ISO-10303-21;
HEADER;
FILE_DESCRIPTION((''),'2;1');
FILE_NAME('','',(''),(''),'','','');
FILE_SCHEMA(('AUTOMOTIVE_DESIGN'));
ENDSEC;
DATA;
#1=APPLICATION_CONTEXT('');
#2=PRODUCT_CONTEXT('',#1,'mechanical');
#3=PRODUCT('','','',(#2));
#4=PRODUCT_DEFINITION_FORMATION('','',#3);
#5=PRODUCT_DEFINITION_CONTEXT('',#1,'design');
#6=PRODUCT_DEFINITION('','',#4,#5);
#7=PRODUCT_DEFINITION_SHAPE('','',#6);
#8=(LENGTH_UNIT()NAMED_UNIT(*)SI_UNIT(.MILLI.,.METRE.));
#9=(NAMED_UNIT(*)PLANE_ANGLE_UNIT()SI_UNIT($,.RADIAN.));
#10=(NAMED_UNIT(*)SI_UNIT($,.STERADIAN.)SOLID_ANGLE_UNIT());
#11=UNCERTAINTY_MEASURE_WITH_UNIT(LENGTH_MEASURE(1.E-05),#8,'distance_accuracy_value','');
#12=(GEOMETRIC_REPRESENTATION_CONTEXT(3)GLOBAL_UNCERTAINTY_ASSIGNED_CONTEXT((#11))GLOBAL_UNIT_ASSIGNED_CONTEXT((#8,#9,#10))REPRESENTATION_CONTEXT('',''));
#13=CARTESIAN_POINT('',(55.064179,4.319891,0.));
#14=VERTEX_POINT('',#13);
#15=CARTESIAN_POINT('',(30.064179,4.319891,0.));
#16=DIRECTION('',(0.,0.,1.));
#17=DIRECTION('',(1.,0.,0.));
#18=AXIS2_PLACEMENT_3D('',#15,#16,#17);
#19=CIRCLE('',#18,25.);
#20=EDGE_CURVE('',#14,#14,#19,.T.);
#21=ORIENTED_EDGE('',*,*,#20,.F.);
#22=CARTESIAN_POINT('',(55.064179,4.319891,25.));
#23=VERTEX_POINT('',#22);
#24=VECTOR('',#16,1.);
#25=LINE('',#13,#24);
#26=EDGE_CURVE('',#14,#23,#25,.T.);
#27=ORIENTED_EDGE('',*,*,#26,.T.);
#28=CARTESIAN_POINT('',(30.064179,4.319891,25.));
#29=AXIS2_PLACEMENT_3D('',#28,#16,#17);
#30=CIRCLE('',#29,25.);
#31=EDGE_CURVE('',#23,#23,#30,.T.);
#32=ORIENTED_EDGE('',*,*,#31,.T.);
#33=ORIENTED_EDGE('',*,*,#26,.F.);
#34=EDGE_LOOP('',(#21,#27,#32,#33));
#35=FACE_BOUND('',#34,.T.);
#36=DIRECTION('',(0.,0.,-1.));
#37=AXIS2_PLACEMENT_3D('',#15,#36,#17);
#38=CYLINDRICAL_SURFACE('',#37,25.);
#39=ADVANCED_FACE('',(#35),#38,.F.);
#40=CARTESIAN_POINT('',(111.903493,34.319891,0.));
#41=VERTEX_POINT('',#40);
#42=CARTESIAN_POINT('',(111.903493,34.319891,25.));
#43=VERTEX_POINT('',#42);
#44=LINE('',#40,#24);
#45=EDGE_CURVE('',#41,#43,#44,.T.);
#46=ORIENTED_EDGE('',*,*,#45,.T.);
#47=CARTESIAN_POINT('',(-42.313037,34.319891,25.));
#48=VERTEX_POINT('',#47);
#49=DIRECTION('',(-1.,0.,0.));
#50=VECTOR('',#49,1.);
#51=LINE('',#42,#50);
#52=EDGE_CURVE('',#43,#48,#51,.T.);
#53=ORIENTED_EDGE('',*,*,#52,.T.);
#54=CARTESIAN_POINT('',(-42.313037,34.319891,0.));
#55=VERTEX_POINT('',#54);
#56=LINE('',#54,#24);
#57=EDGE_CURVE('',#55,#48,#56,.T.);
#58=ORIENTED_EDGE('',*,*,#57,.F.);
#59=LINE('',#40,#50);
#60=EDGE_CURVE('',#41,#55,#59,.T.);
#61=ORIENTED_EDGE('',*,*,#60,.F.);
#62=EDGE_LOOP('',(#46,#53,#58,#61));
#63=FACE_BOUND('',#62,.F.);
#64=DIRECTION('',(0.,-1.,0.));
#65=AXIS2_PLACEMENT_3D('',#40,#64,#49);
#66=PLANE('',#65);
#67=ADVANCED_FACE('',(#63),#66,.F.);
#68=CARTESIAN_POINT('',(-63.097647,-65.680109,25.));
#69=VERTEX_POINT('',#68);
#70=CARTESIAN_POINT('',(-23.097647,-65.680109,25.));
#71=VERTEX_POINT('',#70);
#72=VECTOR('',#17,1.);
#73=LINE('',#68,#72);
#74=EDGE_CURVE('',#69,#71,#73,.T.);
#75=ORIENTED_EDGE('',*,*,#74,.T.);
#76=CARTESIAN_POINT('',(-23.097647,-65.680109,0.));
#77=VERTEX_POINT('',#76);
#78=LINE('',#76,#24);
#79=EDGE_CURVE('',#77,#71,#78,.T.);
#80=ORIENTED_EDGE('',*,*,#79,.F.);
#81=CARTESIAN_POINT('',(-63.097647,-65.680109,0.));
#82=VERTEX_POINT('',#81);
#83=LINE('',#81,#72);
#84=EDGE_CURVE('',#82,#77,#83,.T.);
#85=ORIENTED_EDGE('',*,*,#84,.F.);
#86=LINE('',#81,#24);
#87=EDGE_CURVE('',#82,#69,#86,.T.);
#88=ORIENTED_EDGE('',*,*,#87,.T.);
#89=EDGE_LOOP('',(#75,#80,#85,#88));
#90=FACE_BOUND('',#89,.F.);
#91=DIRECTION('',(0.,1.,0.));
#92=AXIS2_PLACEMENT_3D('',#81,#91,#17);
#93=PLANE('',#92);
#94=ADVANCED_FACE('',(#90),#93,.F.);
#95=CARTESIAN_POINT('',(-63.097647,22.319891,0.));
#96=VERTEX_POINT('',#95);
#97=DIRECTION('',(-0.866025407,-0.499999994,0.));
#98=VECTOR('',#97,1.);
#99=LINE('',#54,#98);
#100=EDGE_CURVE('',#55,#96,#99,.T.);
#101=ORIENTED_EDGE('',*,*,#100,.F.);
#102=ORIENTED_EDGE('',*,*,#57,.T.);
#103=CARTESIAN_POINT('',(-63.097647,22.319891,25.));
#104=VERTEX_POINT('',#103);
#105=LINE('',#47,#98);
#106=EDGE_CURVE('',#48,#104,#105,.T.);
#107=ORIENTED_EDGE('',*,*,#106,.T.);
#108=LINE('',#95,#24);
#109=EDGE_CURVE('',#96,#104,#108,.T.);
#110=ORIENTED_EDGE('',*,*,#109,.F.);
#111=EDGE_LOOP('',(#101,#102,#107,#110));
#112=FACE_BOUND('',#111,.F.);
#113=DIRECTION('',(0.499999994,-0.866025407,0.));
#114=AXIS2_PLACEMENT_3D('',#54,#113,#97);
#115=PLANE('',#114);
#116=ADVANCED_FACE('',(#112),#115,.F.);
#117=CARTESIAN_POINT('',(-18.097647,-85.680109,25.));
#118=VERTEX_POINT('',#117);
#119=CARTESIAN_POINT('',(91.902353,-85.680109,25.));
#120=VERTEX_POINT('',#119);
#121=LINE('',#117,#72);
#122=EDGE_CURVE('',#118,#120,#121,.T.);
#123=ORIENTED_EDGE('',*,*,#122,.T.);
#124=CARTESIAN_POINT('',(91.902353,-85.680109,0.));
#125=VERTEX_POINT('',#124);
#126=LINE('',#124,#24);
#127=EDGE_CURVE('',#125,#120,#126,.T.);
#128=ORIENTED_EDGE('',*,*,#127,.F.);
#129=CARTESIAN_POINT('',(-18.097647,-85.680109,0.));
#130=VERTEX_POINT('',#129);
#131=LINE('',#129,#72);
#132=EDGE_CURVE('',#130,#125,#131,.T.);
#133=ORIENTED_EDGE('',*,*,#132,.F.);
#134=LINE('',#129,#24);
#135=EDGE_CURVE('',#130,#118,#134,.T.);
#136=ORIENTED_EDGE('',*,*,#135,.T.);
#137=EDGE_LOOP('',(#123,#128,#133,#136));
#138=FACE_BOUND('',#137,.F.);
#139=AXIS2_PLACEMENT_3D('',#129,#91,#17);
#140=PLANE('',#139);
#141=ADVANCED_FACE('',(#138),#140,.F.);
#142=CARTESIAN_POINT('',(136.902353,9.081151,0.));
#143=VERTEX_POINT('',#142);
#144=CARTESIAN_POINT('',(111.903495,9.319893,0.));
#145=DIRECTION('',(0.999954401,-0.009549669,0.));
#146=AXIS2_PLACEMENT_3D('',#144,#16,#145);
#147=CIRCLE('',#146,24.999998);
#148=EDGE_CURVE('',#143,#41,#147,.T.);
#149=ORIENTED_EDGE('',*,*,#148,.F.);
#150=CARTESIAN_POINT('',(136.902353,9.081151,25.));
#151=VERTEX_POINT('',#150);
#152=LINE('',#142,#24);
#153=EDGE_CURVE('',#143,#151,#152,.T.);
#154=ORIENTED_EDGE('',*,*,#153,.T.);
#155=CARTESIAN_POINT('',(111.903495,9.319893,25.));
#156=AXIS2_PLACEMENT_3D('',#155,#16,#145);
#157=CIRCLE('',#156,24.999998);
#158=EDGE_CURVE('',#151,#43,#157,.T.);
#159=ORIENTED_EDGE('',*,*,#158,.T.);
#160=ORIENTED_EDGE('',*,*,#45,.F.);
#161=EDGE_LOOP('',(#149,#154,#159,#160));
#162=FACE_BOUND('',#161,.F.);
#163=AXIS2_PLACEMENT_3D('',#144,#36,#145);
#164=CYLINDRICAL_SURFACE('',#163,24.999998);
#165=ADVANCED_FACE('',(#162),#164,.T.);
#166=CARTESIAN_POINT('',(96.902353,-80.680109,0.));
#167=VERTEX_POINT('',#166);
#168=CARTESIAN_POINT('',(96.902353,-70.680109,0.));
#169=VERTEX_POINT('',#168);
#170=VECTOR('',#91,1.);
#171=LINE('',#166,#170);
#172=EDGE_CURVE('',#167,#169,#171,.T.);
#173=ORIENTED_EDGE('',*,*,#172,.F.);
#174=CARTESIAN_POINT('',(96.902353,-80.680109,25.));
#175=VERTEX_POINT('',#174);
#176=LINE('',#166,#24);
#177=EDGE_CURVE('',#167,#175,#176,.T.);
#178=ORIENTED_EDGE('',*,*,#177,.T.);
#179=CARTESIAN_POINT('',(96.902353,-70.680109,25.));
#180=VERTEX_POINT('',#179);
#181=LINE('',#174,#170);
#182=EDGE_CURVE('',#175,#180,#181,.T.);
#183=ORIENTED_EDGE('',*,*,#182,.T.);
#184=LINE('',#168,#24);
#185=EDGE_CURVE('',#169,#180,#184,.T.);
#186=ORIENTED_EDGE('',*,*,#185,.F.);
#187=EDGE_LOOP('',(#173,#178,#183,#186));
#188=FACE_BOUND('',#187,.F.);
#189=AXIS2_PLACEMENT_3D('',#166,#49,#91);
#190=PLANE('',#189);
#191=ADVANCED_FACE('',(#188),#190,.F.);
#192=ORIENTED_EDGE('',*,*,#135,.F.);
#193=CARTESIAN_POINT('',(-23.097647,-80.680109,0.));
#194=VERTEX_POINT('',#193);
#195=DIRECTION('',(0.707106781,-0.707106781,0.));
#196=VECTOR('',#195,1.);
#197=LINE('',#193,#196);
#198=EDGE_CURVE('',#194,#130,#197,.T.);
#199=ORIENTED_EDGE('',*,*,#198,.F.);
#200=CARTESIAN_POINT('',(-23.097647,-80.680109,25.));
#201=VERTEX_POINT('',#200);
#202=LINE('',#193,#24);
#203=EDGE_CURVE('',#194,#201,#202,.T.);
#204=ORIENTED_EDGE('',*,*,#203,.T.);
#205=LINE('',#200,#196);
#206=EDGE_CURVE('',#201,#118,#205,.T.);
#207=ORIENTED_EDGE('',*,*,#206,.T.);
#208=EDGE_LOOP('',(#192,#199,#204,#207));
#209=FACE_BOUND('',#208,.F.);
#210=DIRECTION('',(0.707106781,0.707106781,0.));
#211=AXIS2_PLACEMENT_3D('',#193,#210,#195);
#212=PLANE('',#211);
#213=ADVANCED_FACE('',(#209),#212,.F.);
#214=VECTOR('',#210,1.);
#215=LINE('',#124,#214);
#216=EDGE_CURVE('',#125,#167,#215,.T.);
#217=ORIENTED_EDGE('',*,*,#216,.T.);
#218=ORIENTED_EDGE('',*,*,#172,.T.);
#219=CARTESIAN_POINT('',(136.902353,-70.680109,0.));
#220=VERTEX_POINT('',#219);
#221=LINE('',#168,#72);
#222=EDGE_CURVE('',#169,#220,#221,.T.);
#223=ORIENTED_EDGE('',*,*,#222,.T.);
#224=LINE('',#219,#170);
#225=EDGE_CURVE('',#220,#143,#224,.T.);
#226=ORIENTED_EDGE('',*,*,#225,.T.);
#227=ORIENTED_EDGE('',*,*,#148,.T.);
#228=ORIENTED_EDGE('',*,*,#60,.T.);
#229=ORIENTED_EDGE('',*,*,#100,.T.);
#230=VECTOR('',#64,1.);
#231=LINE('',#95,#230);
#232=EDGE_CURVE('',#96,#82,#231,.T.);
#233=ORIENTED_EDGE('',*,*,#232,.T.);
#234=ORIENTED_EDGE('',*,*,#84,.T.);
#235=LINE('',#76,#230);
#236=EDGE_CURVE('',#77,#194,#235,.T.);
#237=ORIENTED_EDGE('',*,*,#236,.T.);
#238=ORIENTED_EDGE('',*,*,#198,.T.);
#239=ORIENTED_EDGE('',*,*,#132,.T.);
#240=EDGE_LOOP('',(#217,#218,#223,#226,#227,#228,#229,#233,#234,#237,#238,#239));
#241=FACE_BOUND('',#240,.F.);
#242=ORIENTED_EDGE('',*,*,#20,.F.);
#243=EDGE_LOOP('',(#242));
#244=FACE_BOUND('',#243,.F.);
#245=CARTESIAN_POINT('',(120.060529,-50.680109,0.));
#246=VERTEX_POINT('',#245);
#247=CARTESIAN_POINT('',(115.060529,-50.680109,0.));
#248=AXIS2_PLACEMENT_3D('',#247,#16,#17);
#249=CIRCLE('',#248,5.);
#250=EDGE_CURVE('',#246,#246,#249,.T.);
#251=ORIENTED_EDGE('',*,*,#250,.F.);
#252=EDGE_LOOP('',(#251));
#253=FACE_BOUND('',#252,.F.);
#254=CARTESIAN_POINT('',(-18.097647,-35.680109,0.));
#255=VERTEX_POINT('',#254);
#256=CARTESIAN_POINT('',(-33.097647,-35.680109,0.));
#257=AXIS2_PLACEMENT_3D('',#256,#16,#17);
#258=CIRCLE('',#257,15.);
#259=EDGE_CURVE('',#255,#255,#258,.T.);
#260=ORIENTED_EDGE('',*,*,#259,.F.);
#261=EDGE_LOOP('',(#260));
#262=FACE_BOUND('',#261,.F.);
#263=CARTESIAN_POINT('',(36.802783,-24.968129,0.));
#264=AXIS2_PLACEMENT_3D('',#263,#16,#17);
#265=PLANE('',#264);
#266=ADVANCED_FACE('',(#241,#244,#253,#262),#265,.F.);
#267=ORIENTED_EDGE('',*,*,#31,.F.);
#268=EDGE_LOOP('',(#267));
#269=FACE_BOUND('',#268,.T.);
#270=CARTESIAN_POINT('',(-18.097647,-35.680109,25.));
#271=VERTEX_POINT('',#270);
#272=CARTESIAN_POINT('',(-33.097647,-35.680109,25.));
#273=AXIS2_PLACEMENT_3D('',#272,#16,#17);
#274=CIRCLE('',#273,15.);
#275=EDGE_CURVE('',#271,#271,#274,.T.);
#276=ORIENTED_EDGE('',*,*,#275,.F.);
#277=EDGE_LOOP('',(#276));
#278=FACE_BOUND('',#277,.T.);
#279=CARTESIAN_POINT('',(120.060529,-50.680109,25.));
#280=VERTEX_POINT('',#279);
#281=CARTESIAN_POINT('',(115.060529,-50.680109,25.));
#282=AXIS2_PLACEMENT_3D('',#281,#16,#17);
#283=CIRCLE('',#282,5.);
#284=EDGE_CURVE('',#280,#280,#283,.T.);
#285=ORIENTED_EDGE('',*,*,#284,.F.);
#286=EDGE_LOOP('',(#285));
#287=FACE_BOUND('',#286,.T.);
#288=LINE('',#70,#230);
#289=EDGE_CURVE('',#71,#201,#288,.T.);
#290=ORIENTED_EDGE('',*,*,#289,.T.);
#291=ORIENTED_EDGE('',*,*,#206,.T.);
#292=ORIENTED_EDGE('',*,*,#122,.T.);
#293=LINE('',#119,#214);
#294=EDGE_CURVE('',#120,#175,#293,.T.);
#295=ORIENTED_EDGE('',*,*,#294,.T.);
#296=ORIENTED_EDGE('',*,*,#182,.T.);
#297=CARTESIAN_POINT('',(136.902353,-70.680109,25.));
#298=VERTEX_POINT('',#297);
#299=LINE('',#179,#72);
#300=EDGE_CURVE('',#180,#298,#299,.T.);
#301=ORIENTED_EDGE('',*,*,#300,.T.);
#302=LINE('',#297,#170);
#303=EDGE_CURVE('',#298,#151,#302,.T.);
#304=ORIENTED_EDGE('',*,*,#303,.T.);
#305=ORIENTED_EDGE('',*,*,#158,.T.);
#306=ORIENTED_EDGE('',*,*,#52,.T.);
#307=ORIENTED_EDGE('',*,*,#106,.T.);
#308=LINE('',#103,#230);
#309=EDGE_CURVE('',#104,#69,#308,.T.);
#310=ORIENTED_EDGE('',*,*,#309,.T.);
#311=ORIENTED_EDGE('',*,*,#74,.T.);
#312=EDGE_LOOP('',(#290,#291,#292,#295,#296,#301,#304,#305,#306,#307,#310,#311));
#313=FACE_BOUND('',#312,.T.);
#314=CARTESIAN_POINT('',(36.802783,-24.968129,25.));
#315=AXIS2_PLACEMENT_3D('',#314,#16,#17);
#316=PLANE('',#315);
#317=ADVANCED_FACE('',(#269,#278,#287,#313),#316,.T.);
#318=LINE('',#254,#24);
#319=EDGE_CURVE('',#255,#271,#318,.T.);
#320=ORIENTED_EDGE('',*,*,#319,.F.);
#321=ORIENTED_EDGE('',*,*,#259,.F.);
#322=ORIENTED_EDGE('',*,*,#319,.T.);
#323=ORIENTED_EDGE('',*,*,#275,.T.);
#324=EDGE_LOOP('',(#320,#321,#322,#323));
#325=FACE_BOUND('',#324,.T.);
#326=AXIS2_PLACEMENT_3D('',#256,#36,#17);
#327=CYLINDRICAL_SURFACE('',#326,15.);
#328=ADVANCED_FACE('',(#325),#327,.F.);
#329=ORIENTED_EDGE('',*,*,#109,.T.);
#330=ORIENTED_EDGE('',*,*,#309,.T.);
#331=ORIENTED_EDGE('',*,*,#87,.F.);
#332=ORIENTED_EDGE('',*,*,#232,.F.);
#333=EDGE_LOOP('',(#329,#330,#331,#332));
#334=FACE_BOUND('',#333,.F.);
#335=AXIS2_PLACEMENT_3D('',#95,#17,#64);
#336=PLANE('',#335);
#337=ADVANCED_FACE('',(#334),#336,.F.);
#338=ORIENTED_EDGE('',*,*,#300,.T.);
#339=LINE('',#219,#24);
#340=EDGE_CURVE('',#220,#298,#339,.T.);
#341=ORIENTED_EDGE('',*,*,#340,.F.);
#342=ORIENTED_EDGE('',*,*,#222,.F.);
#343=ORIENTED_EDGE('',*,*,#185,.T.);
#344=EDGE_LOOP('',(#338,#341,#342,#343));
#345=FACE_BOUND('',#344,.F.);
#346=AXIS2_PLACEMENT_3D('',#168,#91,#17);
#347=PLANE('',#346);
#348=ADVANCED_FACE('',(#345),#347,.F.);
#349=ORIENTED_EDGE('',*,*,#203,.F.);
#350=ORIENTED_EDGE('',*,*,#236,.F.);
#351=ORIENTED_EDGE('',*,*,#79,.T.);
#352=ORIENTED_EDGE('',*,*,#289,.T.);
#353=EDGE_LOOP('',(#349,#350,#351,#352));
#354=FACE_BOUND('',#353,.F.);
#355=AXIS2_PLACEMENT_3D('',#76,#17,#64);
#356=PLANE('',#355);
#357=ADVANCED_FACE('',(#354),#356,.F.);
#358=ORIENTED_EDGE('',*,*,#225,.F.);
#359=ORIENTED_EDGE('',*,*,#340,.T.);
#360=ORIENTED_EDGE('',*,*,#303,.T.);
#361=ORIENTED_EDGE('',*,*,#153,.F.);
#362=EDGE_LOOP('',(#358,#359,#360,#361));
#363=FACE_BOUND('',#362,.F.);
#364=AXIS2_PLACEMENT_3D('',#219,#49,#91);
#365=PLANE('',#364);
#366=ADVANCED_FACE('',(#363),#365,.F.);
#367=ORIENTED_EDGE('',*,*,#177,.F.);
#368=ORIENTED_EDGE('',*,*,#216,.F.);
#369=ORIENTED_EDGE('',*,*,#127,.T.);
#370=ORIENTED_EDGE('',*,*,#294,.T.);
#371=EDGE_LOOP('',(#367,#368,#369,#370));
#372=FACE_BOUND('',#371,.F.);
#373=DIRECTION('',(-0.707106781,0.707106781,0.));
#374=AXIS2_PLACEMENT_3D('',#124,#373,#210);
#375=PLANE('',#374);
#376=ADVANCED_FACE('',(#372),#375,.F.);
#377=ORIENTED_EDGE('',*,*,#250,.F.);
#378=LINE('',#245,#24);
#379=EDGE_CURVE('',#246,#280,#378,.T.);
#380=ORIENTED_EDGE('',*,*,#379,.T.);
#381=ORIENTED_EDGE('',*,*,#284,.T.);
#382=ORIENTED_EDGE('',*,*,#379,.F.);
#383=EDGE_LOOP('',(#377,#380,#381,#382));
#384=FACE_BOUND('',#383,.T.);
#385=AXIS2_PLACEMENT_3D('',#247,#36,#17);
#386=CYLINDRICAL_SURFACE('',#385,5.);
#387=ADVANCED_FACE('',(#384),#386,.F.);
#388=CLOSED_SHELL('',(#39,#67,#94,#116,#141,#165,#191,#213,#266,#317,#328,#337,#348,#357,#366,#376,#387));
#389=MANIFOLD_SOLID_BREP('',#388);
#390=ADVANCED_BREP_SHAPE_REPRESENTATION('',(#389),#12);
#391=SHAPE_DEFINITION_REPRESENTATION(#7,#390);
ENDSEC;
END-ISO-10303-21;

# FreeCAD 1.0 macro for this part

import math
import FreeCAD as App
import Part
import Sketcher

doc = App.newDocument("Part")
body = doc.addObject("PartDesign::Body", "Body")

# Sketch on XY plane
sketch1 = body.newObject("Sketcher::SketchObject", "Sketch")
sketch1.AttachmentSupport = (doc.getObject("XY_Plane"), [""])
sketch1.MapMode = "FlatFace"
sketch1.addGeometry(Part.LineSegment(App.Vector(-42.313037, 34.319891, 0), App.Vector(-63.097647, 22.319891, 0)), False)
sketch1.addGeometry(Part.LineSegment(App.Vector(-63.097647, 22.319891, 0), App.Vector(-63.097647, -65.680109, 0)), False)
sketch1.addGeometry(Part.LineSegment(App.Vector(-63.097647, -65.680109, 0), App.Vector(-23.097647, -65.680109, 0)), False)
sketch1.addGeometry(Part.LineSegment(App.Vector(-23.097647, -65.680109, 0), App.Vector(-23.097647, -80.680109, 0)), False)
sketch1.addGeometry(Part.LineSegment(App.Vector(-23.097647, -80.680109, 0), App.Vector(-18.097647, -85.680109, 0)), False)
sketch1.addGeometry(Part.LineSegment(App.Vector(-18.097647, -85.680109, 0), App.Vector(91.902353, -85.680109, 0)), False)
sketch1.addGeometry(Part.LineSegment(App.Vector(91.902353, -85.680109, 0), App.Vector(96.902353, -80.680109, 0)), False)
sketch1.addGeometry(Part.LineSegment(App.Vector(96.902353, -80.680109, 0), App.Vector(96.902353, -70.680109, 0)), False)
sketch1.addGeometry(Part.LineSegment(App.Vector(96.902353, -70.680109, 0), App.Vector(136.902353, -70.680109, 0)), False)
sketch1.addGeometry(Part.LineSegment(App.Vector(136.902353, -70.680109, 0), App.Vector(136.902353, 9.081151, 0)), False)
sketch1.addGeometry(Part.ArcOfCircle(Part.Circle(App.Vector(111.903495, 9.319893, 0), App.Vector(0, 0, 1), 24.999998), math.radians(-0.547164), math.radians(90.000004)), False)
sketch1.addGeometry(Part.LineSegment(App.Vector(111.903493, 34.319891, 0), App.Vector(-42.313037, 34.319891, 0)), False)
sketch1.addGeometry(Part.Circle(App.Vector(-33.097647, -35.680109, 0), App.Vector(0, 0, 1), 15), False)
sketch1.addGeometry(Part.Circle(App.Vector(115.060529, -50.680109, 0), App.Vector(0, 0, 1), 5), False)
sketch1.addGeometry(Part.Circle(App.Vector(30.064179, 4.319891, 0), App.Vector(0, 0, 1), 25), False)
sketch1.addConstraint(Sketcher.Constraint("Coincident", 0, 2, 1, 1))
sketch1.addConstraint(Sketcher.Constraint("Coincident", 1, 2, 2, 1))
sketch1.addConstraint(Sketcher.Constraint("Coincident", 2, 2, 3, 1))
sketch1.addConstraint(Sketcher.Constraint("Coincident", 3, 2, 4, 1))
sketch1.addConstraint(Sketcher.Constraint("Coincident", 4, 2, 5, 1))
sketch1.addConstraint(Sketcher.Constraint("Coincident", 5, 2, 6, 1))
sketch1.addConstraint(Sketcher.Constraint("Coincident", 6, 2, 7, 1))
sketch1.addConstraint(Sketcher.Constraint("Coincident", 7, 2, 8, 1))
sketch1.addConstraint(Sketcher.Constraint("Coincident", 8, 2, 9, 1))
sketch1.addConstraint(Sketcher.Constraint("Coincident", 9, 2, 10, 1))
sketch1.addConstraint(Sketcher.Constraint("Coincident", 10, 2, 11, 1))
sketch1.addConstraint(Sketcher.Constraint("Coincident", 11, 2, 0, 1))
sketch1.addConstraint(Sketcher.Constraint("Vertical", 1))
sketch1.addConstraint(Sketcher.Constraint("Horizontal", 2))
sketch1.addConstraint(Sketcher.Constraint("Vertical", 3))
sketch1.addConstraint(Sketcher.Constraint("Horizontal", 5))
sketch1.addConstraint(Sketcher.Constraint("Vertical", 7))
sketch1.addConstraint(Sketcher.Constraint("Horizontal", 8))
sketch1.addConstraint(Sketcher.Constraint("Vertical", 9))
sketch1.addConstraint(Sketcher.Constraint("Horizontal", 11))
sketch1.addConstraint(Sketcher.Constraint("Diameter", 12, 30.0))
sketch1.addConstraint(Sketcher.Constraint("Diameter", 13, 10.0))
sketch1.addConstraint(Sketcher.Constraint("Diameter", 14, 50.0))
sketch1.addConstraint(Sketcher.Constraint("Radius", 10, 24.999998))
sketch1.addConstraint(Sketcher.Constraint("DistanceX", 2, 1, 2, 2, 40.0))
sketch1.addConstraint(Sketcher.Constraint("DistanceX", 5, 1, 5, 2, 110.0))
sketch1.addConstraint(Sketcher.Constraint("DistanceX", 8, 1, 8, 2, 40.0))
sketch1.addConstraint(Sketcher.Constraint("DistanceY", 1, 2, 1, 1, 88.0))
sketch1.addConstraint(Sketcher.Constraint("DistanceY", 3, 2, 3, 1, 15.0))
sketch1.addConstraint(Sketcher.Constraint("DistanceY", 7, 1, 7, 2, 10.0))
sketch1.addConstraint(Sketcher.Constraint("Distance", 0, 24.0))
sketch1.addConstraint(Sketcher.Constraint("DistanceY", 12, 3, 10, 3, 45.000002))
sketch1.addConstraint(Sketcher.Constraint("DistanceY", 13, 3, 10, 3, 60.000002))
sketch1.addConstraint(Sketcher.Constraint("DistanceY", 12, 3, 14, 3, 40.0))
sketch1.addConstraint(Sketcher.Constraint("DistanceX", 0, 2, 12, 3, 30.0))
sketch1.addConstraint(Sketcher.Constraint("DistanceY", 12, 3, 0, 2, 58.0))
sketch1.addConstraint(Sketcher.Constraint("DistanceX", 3, 2, 4, 2, 5.0))
sketch1.addConstraint(Sketcher.Constraint("DistanceY", 4, 2, 3, 2, 5.0))
sketch1.addConstraint(Sketcher.Constraint("DistanceX", 5, 2, 6, 2, 5.0))
sketch1.addConstraint(Sketcher.Constraint("DistanceY", 5, 2, 6, 2, 5.0))
sketch1.addConstraint(Sketcher.Constraint("DistanceX", 11, 2, 11, 1, 154.21653))
sketch1.addConstraint(Sketcher.Constraint("DistanceY", 9, 1, 9, 2, 79.76126))
sketch1.addConstraint(Sketcher.Constraint("DistanceY", 12, 3, -1, 1, 35.680109))
sketch1.addConstraint(Sketcher.Constraint("DistanceX", -1, 1, 13, 3, 115.060529))
sketch1.addConstraint(Sketcher.Constraint("DistanceX", -1, 1, 14, 3, 30.064179))
sketch1.addConstraint(Sketcher.Constraint("DistanceX", -1, 1, 10, 3, 111.903495))
pad1 = body.newObject("PartDesign::Pad", "Pad")
pad1.Profile = sketch1
pad1.Length = 25

doc.recompute()
